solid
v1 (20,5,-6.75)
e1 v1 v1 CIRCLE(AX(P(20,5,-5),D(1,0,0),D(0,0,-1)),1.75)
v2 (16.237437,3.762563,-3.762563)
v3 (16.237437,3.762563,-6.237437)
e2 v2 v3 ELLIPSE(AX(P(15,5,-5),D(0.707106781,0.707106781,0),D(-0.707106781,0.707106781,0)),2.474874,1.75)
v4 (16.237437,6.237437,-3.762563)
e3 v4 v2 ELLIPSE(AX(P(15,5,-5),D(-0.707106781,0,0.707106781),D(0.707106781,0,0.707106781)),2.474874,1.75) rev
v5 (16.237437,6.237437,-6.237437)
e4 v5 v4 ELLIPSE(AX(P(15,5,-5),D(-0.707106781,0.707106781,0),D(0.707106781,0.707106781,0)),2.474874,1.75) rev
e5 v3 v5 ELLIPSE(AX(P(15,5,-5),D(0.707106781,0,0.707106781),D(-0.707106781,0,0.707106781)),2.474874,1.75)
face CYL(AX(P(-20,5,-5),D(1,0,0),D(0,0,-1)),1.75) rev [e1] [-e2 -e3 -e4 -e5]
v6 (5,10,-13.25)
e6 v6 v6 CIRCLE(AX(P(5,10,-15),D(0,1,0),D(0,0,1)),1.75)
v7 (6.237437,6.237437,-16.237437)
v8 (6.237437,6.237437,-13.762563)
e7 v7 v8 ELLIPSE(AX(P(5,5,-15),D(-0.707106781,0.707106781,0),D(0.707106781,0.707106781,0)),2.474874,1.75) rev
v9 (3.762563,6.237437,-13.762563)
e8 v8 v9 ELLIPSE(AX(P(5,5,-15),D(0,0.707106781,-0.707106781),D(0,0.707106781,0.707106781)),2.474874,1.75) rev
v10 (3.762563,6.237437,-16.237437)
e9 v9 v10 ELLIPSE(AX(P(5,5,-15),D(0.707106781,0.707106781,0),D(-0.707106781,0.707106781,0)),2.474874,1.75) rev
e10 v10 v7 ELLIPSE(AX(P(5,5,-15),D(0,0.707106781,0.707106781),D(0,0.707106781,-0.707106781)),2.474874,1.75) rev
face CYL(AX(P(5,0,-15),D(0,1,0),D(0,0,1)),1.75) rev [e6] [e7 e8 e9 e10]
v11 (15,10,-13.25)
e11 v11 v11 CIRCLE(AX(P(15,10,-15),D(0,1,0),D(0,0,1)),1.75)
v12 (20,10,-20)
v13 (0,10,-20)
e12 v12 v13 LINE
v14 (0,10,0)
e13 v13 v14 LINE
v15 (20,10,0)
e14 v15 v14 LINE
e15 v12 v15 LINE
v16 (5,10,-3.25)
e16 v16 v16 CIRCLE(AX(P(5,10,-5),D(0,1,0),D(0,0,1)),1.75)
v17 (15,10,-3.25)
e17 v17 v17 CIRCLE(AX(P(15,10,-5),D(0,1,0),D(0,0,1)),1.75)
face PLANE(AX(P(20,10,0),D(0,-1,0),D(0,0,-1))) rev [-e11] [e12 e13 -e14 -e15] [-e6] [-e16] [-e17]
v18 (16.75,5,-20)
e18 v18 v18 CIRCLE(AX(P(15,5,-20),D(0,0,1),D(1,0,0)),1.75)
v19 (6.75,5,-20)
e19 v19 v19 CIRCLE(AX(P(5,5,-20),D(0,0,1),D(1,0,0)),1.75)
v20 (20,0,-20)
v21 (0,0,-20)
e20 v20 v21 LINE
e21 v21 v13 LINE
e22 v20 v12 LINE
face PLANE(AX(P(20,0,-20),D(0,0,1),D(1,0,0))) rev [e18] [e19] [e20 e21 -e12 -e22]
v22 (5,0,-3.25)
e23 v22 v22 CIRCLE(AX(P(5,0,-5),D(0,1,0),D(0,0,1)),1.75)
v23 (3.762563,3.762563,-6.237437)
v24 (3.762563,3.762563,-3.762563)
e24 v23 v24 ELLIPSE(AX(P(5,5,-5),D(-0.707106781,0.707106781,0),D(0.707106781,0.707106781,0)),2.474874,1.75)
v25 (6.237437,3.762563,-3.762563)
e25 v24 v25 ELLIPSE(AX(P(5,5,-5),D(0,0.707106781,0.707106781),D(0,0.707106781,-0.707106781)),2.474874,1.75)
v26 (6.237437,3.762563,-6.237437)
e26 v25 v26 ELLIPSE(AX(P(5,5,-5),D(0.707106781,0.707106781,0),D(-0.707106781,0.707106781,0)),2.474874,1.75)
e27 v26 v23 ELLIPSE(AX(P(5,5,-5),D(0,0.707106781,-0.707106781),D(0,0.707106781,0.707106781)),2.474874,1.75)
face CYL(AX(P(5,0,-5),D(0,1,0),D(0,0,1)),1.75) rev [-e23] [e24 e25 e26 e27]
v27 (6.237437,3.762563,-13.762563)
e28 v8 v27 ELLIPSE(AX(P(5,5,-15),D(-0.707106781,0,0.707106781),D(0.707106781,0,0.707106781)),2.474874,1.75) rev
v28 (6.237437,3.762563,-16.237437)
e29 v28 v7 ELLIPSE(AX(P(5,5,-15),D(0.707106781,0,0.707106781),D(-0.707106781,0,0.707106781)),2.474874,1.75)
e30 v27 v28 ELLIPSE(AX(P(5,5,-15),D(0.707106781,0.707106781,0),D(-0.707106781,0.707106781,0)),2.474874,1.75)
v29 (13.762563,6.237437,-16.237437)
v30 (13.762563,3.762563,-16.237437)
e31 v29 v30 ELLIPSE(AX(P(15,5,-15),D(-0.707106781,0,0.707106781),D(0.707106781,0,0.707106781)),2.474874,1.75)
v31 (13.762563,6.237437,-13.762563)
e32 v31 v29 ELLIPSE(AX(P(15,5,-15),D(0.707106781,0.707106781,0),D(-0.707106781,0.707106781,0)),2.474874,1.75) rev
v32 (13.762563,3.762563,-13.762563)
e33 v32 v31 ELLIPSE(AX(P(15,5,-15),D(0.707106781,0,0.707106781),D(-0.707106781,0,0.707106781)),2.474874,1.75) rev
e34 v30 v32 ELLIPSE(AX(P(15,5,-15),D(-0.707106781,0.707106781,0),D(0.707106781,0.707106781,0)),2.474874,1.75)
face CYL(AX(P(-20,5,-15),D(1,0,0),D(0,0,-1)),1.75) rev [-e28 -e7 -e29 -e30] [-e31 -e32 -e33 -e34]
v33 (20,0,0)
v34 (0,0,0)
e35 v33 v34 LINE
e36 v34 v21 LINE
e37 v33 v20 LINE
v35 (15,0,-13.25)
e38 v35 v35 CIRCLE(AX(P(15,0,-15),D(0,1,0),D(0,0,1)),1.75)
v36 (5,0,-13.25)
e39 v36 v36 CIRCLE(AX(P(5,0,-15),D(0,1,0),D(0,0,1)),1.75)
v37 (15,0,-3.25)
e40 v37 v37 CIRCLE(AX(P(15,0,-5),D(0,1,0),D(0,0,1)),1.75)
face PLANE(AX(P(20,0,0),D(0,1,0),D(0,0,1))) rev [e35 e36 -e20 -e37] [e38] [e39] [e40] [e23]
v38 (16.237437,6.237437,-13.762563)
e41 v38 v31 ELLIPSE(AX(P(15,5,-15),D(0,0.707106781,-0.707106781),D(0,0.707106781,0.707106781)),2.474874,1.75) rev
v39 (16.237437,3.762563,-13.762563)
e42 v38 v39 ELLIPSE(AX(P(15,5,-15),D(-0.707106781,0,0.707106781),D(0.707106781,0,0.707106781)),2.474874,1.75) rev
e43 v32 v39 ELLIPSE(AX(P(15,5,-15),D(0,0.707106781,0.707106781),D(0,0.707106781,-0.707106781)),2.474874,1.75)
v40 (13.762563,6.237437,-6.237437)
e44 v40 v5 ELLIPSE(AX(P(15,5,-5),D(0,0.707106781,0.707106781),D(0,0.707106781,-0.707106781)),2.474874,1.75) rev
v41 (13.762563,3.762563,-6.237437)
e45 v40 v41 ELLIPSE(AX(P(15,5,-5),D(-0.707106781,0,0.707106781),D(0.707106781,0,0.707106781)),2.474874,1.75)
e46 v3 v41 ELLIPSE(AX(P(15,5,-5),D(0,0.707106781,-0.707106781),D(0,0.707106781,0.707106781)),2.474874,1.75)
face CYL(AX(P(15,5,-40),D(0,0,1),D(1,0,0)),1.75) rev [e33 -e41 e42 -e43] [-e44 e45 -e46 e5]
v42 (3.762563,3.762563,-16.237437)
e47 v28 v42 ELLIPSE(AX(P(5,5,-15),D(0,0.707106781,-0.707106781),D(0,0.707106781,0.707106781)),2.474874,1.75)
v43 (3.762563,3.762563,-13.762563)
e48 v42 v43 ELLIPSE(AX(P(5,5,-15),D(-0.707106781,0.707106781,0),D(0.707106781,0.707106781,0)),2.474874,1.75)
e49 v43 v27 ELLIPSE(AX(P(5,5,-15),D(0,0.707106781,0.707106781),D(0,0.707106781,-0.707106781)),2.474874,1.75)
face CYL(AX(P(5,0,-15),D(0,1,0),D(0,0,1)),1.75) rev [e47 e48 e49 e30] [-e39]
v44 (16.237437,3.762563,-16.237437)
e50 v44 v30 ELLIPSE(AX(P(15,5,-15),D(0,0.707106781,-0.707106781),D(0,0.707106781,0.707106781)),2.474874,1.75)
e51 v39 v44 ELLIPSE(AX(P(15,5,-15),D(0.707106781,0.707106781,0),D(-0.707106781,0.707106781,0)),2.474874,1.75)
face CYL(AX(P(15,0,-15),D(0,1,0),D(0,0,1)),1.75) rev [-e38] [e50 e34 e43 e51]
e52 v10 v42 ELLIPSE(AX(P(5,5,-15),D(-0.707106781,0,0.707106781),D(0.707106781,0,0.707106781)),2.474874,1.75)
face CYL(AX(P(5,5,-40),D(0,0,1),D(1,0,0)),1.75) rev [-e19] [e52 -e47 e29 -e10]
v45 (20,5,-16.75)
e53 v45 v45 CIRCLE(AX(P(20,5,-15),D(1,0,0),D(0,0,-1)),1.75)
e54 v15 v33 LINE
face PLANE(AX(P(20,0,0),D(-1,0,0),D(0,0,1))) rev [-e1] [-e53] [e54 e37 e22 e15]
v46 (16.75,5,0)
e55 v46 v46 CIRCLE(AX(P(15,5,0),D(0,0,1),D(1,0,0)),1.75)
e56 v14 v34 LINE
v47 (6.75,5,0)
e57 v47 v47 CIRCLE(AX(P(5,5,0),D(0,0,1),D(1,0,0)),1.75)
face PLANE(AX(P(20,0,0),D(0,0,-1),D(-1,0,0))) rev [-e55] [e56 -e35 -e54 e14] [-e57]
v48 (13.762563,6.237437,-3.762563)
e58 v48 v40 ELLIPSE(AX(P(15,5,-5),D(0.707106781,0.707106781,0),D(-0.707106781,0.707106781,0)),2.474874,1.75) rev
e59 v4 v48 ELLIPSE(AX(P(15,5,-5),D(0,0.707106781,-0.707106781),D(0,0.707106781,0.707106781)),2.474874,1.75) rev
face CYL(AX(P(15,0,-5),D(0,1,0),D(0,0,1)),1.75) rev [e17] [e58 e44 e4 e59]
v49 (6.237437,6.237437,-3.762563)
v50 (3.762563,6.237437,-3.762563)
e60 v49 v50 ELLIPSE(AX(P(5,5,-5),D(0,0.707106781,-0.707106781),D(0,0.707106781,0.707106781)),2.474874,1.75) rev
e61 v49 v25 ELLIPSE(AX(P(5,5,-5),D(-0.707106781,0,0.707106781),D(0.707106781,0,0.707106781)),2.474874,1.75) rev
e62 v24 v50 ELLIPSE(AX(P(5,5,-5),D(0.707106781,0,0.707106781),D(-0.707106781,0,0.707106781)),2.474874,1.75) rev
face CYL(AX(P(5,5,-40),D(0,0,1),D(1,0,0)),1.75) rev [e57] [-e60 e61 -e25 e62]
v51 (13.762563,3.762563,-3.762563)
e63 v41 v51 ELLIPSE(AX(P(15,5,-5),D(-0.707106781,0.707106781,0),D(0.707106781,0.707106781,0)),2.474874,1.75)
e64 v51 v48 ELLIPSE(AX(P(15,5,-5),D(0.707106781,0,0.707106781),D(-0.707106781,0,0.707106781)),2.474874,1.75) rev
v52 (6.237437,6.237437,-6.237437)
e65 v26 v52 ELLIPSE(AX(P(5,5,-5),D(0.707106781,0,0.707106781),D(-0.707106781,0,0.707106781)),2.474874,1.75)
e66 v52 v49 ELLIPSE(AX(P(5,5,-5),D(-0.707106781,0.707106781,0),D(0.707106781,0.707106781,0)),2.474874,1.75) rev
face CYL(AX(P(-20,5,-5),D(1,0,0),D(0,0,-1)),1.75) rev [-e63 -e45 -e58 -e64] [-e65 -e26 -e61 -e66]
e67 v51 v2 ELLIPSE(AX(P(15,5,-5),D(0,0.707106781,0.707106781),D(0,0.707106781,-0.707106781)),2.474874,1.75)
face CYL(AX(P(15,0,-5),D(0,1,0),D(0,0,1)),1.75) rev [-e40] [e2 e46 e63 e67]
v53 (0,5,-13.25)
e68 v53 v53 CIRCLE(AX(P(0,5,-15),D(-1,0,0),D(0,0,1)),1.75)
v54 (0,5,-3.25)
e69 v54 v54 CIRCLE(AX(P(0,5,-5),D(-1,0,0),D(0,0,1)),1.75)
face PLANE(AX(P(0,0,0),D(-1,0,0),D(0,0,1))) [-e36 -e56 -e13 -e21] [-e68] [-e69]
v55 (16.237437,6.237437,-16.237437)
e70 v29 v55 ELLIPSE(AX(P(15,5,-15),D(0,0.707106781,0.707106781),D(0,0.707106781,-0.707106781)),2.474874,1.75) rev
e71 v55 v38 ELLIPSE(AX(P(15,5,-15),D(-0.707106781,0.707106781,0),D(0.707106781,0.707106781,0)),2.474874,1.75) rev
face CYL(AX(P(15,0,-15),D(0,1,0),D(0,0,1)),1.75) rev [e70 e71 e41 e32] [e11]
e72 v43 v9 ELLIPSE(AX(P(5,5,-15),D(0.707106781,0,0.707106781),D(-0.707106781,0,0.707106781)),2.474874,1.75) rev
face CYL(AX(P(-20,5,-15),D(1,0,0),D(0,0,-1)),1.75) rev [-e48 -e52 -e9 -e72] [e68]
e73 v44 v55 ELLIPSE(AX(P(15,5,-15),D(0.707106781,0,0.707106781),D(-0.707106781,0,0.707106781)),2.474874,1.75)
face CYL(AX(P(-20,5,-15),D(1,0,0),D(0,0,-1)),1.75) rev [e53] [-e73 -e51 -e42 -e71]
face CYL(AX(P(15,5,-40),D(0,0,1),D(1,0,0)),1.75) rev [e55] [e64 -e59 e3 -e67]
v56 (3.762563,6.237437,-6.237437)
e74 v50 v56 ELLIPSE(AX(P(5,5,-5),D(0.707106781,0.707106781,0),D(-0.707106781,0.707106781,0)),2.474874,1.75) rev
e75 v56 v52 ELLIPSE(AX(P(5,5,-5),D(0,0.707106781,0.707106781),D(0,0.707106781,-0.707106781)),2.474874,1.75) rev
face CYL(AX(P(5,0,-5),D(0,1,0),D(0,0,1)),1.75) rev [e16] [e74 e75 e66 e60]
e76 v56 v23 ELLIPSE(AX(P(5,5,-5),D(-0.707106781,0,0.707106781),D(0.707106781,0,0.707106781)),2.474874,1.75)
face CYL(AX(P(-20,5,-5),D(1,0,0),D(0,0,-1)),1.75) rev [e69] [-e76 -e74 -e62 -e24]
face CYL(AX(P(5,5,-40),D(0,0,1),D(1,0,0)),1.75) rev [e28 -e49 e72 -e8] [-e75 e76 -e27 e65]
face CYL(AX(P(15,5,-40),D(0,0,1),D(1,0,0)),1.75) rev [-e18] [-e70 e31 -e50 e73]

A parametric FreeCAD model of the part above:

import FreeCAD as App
import Part
import Sketcher


def add_polygon(sketch, points):
    """Adds a closed chain of lines whose ends are joined by coincident constraints."""
    first, n = sketch.GeometryCount, len(points)
    for a, b in zip(points, points[1:] + points[:1]):
        sketch.addGeometry(Part.LineSegment(App.Vector(*a, 0), App.Vector(*b, 0)), False)
    for i in range(n):
        sketch.addConstraint(Sketcher.Constraint("Coincident", first + i, 2, first + (i + 1) % n, 1))

doc = App.newDocument("Part")
body = doc.addObject("PartDesign::Body", "Body")

sketch1 = body.newObject("Sketcher::SketchObject", "Sketch")
sketch1.AttachmentSupport = (doc.getObject("YZ_Plane"), [""])
sketch1.MapMode = "FlatFace"
add_polygon(sketch1, [(10, 0), (0, 0), (0, -20), (10, -20)])
sketch1.addConstraint(Sketcher.Constraint("Horizontal", 0))
sketch1.addConstraint(Sketcher.Constraint("Vertical", 1))
sketch1.addConstraint(Sketcher.Constraint("Horizontal", 2))
sketch1.addConstraint(Sketcher.Constraint("Vertical", 3))
sketch1.addConstraint(Sketcher.Constraint("Coincident", 0, 2, -1, 1))
sketch1.addConstraint(Sketcher.Constraint("DistanceX", 0, 2, 0, 1, 10.0))
sketch1.addConstraint(Sketcher.Constraint("DistanceY", 1, 2, 1, 1, 20.0))
pad1 = body.newObject("PartDesign::Pad", "Pad")
pad1.Profile = sketch1
pad1.Length = 20

sketch2 = body.newObject("Sketcher::SketchObject", "Sketch001")
sketch2.AttachmentSupport = (doc.getObject("XZ_Plane"), [""])
sketch2.MapMode = "FlatFace"
sketch2.AttachmentOffset = App.Placement(App.Vector(0, 0, -10), App.Rotation())
sketch2.addGeometry(Part.Circle(App.Vector(5, -15, 0), App.Vector(0, 0, 1), 1.8), False)
sketch2.addGeometry(Part.Circle(App.Vector(15, -15, 0), App.Vector(0, 0, 1), 1.8), False)
sketch2.addGeometry(Part.Circle(App.Vector(25, -15, 0), App.Vector(0, 0, 1), 1.8), False)
sketch2.addGeometry(Part.Circle(App.Vector(35, -15, 0), App.Vector(0, 0, 1), 1.8), False)
sketch2.addGeometry(Part.Circle(App.Vector(5, -5, 0), App.Vector(0, 0, 1), 1.8), False)
sketch2.addGeometry(Part.Circle(App.Vector(15, -5, 0), App.Vector(0, 0, 1), 1.8), False)
sketch2.addGeometry(Part.Circle(App.Vector(25, -5, 0), App.Vector(0, 0, 1), 1.8), False)
sketch2.addGeometry(Part.Circle(App.Vector(35, -5, 0), App.Vector(0, 0, 1), 1.8), False)
sketch2.addGeometry(Part.Circle(App.Vector(5, 5, 0), App.Vector(0, 0, 1), 1.8), False)
sketch2.addGeometry(Part.Circle(App.Vector(15, 5, 0), App.Vector(0, 0, 1), 1.8), False)
sketch2.addGeometry(Part.Circle(App.Vector(25, 5, 0), App.Vector(0, 0, 1), 1.8), False)
sketch2.addGeometry(Part.Circle(App.Vector(35, 5, 0), App.Vector(0, 0, 1), 1.8), False)
sketch2.addGeometry(Part.Circle(App.Vector(5, 15, 0), App.Vector(0, 0, 1), 1.8), False)
sketch2.addGeometry(Part.Circle(App.Vector(15, 15, 0), App.Vector(0, 0, 1), 1.8), False)
sketch2.addGeometry(Part.Circle(App.Vector(25, 15, 0), App.Vector(0, 0, 1), 1.8), False)
sketch2.addGeometry(Part.Circle(App.Vector(35, 15, 0), App.Vector(0, 0, 1), 1.8), False)
sketch2.addConstraint(Sketcher.Constraint("Equal", 0, 1))
sketch2.addConstraint(Sketcher.Constraint("Equal", 1, 2))
sketch2.addConstraint(Sketcher.Constraint("Equal", 2, 3))
sketch2.addConstraint(Sketcher.Constraint("Equal", 3, 4))
sketch2.addConstraint(Sketcher.Constraint("Equal", 4, 5))
sketch2.addConstraint(Sketcher.Constraint("Equal", 5, 6))
sketch2.addConstraint(Sketcher.Constraint("Equal", 6, 7))
sketch2.addConstraint(Sketcher.Constraint("Equal", 7, 8))
sketch2.addConstraint(Sketcher.Constraint("Equal", 8, 9))
sketch2.addConstraint(Sketcher.Constraint("Equal", 9, 10))
sketch2.addConstraint(Sketcher.Constraint("Equal", 10, 11))
sketch2.addConstraint(Sketcher.Constraint("Equal", 11, 12))
sketch2.addConstraint(Sketcher.Constraint("Equal", 12, 13))
sketch2.addConstraint(Sketcher.Constraint("Equal", 13, 14))
sketch2.addConstraint(Sketcher.Constraint("Equal", 14, 15))
sketch2.addConstraint(Sketcher.Constraint("Symmetric", 4, 3, 8, 3, -1))
sketch2.addConstraint(Sketcher.Constraint("Symmetric", 5, 3, 9, 3, -1))
sketch2.addConstraint(Sketcher.Constraint("Symmetric", 6, 3, 10, 3, -1))
sketch2.addConstraint(Sketcher.Constraint("Symmetric", 7, 3, 11, 3, -1))
sketch2.addConstraint(Sketcher.Constraint("Symmetric", 0, 3, 12, 3, -1))
sketch2.addConstraint(Sketcher.Constraint("Symmetric", 1, 3, 13, 3, -1))
sketch2.addConstraint(Sketcher.Constraint("Symmetric", 2, 3, 14, 3, -1))
sketch2.addConstraint(Sketcher.Constraint("Symmetric", 3, 3, 15, 3, -1))
sketch2.addConstraint(Sketcher.Constraint("Horizontal", 0, 3, 1, 3))
sketch2.addConstraint(Sketcher.Constraint("Horizontal", 1, 3, 2, 3))
sketch2.addConstraint(Sketcher.Constraint("Horizontal", 2, 3, 3, 3))
sketch2.addConstraint(Sketcher.Constraint("Horizontal", 4, 3, 5, 3))
sketch2.addConstraint(Sketcher.Constraint("Horizontal", 5, 3, 6, 3))
sketch2.addConstraint(Sketcher.Constraint("Horizontal", 6, 3, 7, 3))
sketch2.addConstraint(Sketcher.Constraint("Vertical", 0, 3, 4, 3))
sketch2.addConstraint(Sketcher.Constraint("Vertical", 1, 3, 5, 3))
sketch2.addConstraint(Sketcher.Constraint("Vertical", 2, 3, 6, 3))
sketch2.addConstraint(Sketcher.Constraint("Vertical", 3, 3, 7, 3))
sketch2.addConstraint(Sketcher.Constraint("Diameter", 0, 3.5))
sketch2.addConstraint(Sketcher.Constraint("DistanceX", -1, 1, 0, 3, 5.0))
sketch2.addConstraint(Sketcher.Constraint("DistanceY", 0, 3, -1, 1, 15.0))
sketch2.addConstraint(Sketcher.Constraint("DistanceX", -1, 1, 1, 3, 15.0))
sketch2.addConstraint(Sketcher.Constraint("DistanceX", -1, 1, 2, 3, 25.0))
sketch2.addConstraint(Sketcher.Constraint("DistanceX", -1, 1, 3, 3, 35.0))
sketch2.addConstraint(Sketcher.Constraint("DistanceY", 4, 3, -1, 1, 5.0))
pocket1 = body.newObject("PartDesign::Pocket", "Pocket")
pocket1.Profile = sketch2
pocket1.Type = "ThroughAll"
pocket1.Reversed = True

sketch3 = body.newObject("Sketcher::SketchObject", "Sketch002")
sketch3.AttachmentSupport = (doc.getObject("XY_Plane"), [""])
sketch3.MapMode = "FlatFace"
sketch3.addGeometry(Part.Circle(App.Vector(5, 5, 0), App.Vector(0, 0, 1), 1.8), False)
sketch3.addGeometry(Part.Circle(App.Vector(15, 5, 0), App.Vector(0, 0, 1), 1.8), False)
sketch3.addGeometry(Part.Circle(App.Vector(25, 5, 0), App.Vector(0, 0, 1), 1.8), False)
sketch3.addGeometry(Part.Circle(App.Vector(35, 5, 0), App.Vector(0, 0, 1), 1.8), False)
sketch3.addConstraint(Sketcher.Constraint("Equal", 0, 1))
sketch3.addConstraint(Sketcher.Constraint("Equal", 1, 2))
sketch3.addConstraint(Sketcher.Constraint("Equal", 2, 3))
sketch3.addConstraint(Sketcher.Constraint("Horizontal", 0, 3, 1, 3))
sketch3.addConstraint(Sketcher.Constraint("Horizontal", 1, 3, 2, 3))
sketch3.addConstraint(Sketcher.Constraint("Horizontal", 2, 3, 3, 3))
sketch3.addConstraint(Sketcher.Constraint("Diameter", 0, 3.5))
sketch3.addConstraint(Sketcher.Constraint("DistanceX", -1, 1, 0, 3, 5.0))
sketch3.addConstraint(Sketcher.Constraint("DistanceY", -1, 1, 0, 3, 5.0))
sketch3.addConstraint(Sketcher.Constraint("DistanceX", -1, 1, 1, 3, 15.0))
sketch3.addConstraint(Sketcher.Constraint("DistanceX", -1, 1, 2, 3, 25.0))
sketch3.addConstraint(Sketcher.Constraint("DistanceX", -1, 1, 3, 3, 35.0))
pocket2 = body.newObject("PartDesign::Pocket", "Pocket001")
pocket2.Profile = sketch3
pocket2.Length = 40

sketch4 = body.newObject("Sketcher::SketchObject", "Sketch003")
sketch4.AttachmentSupport = (doc.getObject("YZ_Plane"), [""])
sketch4.MapMode = "FlatFace"
sketch4.AttachmentOffset = App.Placement(App.Vector(0, 0, 20), App.Rotation())
sketch4.addGeometry(Part.Circle(App.Vector(5, -5, 0), App.Vector(0, 0, 1), 1.8), False)
sketch4.addGeometry(Part.Circle(App.Vector(5, -15, 0), App.Vector(0, 0, 1), 1.8), False)
sketch4.addGeometry(Part.Circle(App.Vector(5, -25, 0), App.Vector(0, 0, 1), 1.8), False)
sketch4.addGeometry(Part.Circle(App.Vector(5, -35, 0), App.Vector(0, 0, 1), 1.8), False)
sketch4.addConstraint(Sketcher.Constraint("Equal", 0, 1))
sketch4.addConstraint(Sketcher.Constraint("Equal", 1, 2))
sketch4.addConstraint(Sketcher.Constraint("Equal", 2, 3))
sketch4.addConstraint(Sketcher.Constraint("Vertical", 0, 3, 1, 3))
sketch4.addConstraint(Sketcher.Constraint("Vertical", 1, 3, 2, 3))
sketch4.addConstraint(Sketcher.Constraint("Vertical", 2, 3, 3, 3))
sketch4.addConstraint(Sketcher.Constraint("Diameter", 0, 3.5))
sketch4.addConstraint(Sketcher.Constraint("DistanceX", -1, 1, 0, 3, 5.0))
sketch4.addConstraint(Sketcher.Constraint("DistanceY", 0, 3, -1, 1, 5.0))
sketch4.addConstraint(Sketcher.Constraint("DistanceY", 1, 3, -1, 1, 15.0))
sketch4.addConstraint(Sketcher.Constraint("DistanceY", 2, 3, -1, 1, 25.0))
sketch4.addConstraint(Sketcher.Constraint("DistanceY", 3, 3, -1, 1, 35.0))
pocket3 = body.newObject("PartDesign::Pocket", "Pocket002")
pocket3.Profile = sketch4
pocket3.Length = 40

doc.recompute()
